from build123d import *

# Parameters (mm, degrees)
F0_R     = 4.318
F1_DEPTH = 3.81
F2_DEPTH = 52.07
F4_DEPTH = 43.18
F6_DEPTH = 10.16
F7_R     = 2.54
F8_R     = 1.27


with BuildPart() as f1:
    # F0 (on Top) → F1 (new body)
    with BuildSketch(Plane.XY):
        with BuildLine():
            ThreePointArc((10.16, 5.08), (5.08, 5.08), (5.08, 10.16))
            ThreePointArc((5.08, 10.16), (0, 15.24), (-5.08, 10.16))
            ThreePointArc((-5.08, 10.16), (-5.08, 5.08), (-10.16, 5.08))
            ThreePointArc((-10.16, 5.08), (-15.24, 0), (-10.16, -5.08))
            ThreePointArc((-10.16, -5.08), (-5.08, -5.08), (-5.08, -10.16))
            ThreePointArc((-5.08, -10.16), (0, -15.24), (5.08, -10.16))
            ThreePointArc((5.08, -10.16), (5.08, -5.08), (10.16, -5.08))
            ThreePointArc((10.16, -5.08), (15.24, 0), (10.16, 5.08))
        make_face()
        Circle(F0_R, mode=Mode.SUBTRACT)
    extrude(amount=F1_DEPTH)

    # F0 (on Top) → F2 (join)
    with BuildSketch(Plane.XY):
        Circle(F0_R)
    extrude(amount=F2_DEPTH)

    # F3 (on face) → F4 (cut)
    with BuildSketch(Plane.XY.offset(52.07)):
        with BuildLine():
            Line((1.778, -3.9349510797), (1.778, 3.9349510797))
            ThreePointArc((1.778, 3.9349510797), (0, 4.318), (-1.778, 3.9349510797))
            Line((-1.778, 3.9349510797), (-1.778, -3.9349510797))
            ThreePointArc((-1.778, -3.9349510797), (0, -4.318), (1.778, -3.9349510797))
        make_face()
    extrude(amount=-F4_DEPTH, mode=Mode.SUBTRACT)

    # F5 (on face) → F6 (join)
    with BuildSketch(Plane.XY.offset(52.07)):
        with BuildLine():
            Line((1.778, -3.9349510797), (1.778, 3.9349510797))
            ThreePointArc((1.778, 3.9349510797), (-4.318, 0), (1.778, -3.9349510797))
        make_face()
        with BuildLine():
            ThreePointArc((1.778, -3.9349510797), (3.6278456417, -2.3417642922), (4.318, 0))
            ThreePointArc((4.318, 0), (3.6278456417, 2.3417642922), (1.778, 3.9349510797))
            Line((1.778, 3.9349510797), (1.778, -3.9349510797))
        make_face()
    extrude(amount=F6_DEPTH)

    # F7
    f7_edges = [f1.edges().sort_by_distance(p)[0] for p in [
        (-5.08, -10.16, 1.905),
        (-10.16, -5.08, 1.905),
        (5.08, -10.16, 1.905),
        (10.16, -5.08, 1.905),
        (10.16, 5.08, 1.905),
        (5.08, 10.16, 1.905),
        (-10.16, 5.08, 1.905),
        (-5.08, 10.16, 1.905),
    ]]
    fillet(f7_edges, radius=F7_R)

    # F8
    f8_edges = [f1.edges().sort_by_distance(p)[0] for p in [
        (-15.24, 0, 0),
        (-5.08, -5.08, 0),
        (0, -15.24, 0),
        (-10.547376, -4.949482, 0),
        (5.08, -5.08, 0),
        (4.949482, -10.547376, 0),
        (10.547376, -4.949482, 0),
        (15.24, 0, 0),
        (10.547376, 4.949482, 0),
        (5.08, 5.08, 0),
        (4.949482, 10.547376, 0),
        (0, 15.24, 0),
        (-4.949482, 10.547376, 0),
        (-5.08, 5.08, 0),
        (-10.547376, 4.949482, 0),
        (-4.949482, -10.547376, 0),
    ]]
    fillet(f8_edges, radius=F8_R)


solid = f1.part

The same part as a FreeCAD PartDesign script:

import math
import FreeCAD as App
import Part
import Sketcher

V = App.Vector
Q = App.Units.Quantity


def edges_at(feature, points):
    """Names of the edges that pass closest to the given points."""
    edges = feature.Shape.Edges
    near = lambda p: min(range(len(edges)), key=lambda i: edges[i].distToShape(Part.Vertex(*p))[0])
    return sorted({f"Edge{near(p) + 1}" for p in points})

doc = App.newDocument("Part")
body = doc.addObject("PartDesign::Body", "Body")

# Sketch on XY plane
sketch1 = body.newObject("Sketcher::SketchObject", "Sketch")
sketch1.AttachmentSupport = (doc.getObject("XY_Plane"), [""])
sketch1.MapMode = "FlatFace"
sketch1.addGeometry(Part.ArcOfCircle(Part.Circle(V(7.62, 7.62, 0), V(0, 0, 1), 3.592102), math.radians(135), math.radians(315)), False)
sketch1.addGeometry(Part.ArcOfCircle(Part.Circle(V(0, 10.16, 0), V(0, 0, 1), 5.08), math.radians(0), math.radians(180)), False)
sketch1.addGeometry(Part.ArcOfCircle(Part.Circle(V(-7.62, 7.62, 0), V(0, 0, 1), 3.592102), math.radians(-135), math.radians(45)), False)
sketch1.addGeometry(Part.ArcOfCircle(Part.Circle(V(-10.16, 0, 0), V(0, 0, 1), 5.08), math.radians(90), math.radians(270)), False)
sketch1.addGeometry(Part.ArcOfCircle(Part.Circle(V(-7.62, -7.62, 0), V(0, 0, 1), 3.592102), math.radians(-45), math.radians(135)), False)
sketch1.addGeometry(Part.ArcOfCircle(Part.Circle(V(0, -10.16, 0), V(0, 0, 1), 5.08), math.radians(180), math.radians(360)), False)
sketch1.addGeometry(Part.ArcOfCircle(Part.Circle(V(7.62, -7.62, 0), V(0, 0, 1), 3.592102), math.radians(45), math.radians(225)), False)
sketch1.addGeometry(Part.ArcOfCircle(Part.Circle(V(10.16, 0, 0), V(0, 0, 1), 5.08), math.radians(-90), math.radians(90)), False)
sketch1.addGeometry(Part.Circle(V(0, 0, 0), V(0, 0, 1), 4.318), False)
sketch1.addConstraint(Sketcher.Constraint("Coincident", 0, 1, 1, 1))
sketch1.addConstraint(Sketcher.Constraint("Coincident", 1, 2, 2, 2))
sketch1.addConstraint(Sketcher.Constraint("Coincident", 2, 1, 3, 1))
sketch1.addConstraint(Sketcher.Constraint("Coincident", 3, 2, 4, 2))
sketch1.addConstraint(Sketcher.Constraint("Coincident", 4, 1, 5, 1))
sketch1.addConstraint(Sketcher.Constraint("Coincident", 5, 2, 6, 2))
sketch1.addConstraint(Sketcher.Constraint("Coincident", 6, 1, 7, 1))
sketch1.addConstraint(Sketcher.Constraint("Coincident", 7, 2, 0, 2))
sketch1.addConstraint(Sketcher.Constraint("Coincident", 8, 3, -1, 1))
sketch1.addConstraint(Sketcher.Constraint("Equal", 0, 2))
sketch1.addConstraint(Sketcher.Constraint("Equal", 1, 3))
sketch1.addConstraint(Sketcher.Constraint("Equal", 2, 4))
sketch1.addConstraint(Sketcher.Constraint("Equal", 3, 5))
sketch1.addConstraint(Sketcher.Constraint("Equal", 4, 6))
sketch1.addConstraint(Sketcher.Constraint("Equal", 5, 7))
sketch1.addConstraint(Sketcher.Constraint("Symmetric", 0, 3, 4, 3, -1, 1))
sketch1.addConstraint(Sketcher.Constraint("Symmetric", 1, 3, 5, 3, -1, 1))
sketch1.addConstraint(Sketcher.Constraint("Symmetric", 2, 3, 6, 3, -1, 1))
sketch1.addConstraint(Sketcher.Constraint("Symmetric", 3, 3, 7, 3, -1, 1))
sketch1.addConstraint(Sketcher.Constraint("Symmetric", 0, 3, 2, 3, -2))
sketch1.addConstraint(Sketcher.Constraint("PointOnObject", 1, 3, -2))
sketch1.addConstraint(Sketcher.Constraint("PointOnObject", 3, 3, -1))
sketch1.addConstraint(Sketcher.Constraint("Horizontal", 1, 3, 0, 1))
sketch1.addConstraint(Sketcher.Constraint("Vertical", 3, 3, 2, 1))
sketch1.addConstraint(Sketcher.Constraint("Radius", 1, Q("0.2 in")))
sketch1.addConstraint(Sketcher.Constraint("Diameter", 8, Q("0.34 in")))
sketch1.addConstraint(Sketcher.Constraint("DistanceX", -1, 1, 0, 3, Q("0.3 in")))
sketch1.addConstraint(Sketcher.Constraint("DistanceY", -1, 1, 0, 3, Q("0.3 in")))
sketch1.addConstraint(Sketcher.Constraint("DistanceY", -1, 1, 1, 3, Q("0.4 in")))
pad1 = body.newObject("PartDesign::Pad", "Pad")
pad1.Profile = sketch1
pad1.Length = Q("0.15 in")

# Sketch on XY plane
sketch2 = body.newObject("Sketcher::SketchObject", "Sketch001")
sketch2.AttachmentSupport = (doc.getObject("XY_Plane"), [""])
sketch2.MapMode = "FlatFace"
sketch2.addGeometry(Part.Circle(V(0, 0, 0), V(0, 0, 1), 4.318), False)
sketch2.addConstraint(Sketcher.Constraint("Coincident", 0, 3, -1, 1))
sketch2.addConstraint(Sketcher.Constraint("Diameter", 0, Q("0.34 in")))
pad2 = body.newObject("PartDesign::Pad", "Pad001")
pad2.Profile = sketch2
pad2.Length = Q("2.05 in")

# Sketch on XY plane
sketch3 = body.newObject("Sketcher::SketchObject", "Sketch002")
sketch3.AttachmentSupport = (doc.getObject("XY_Plane"), [""])
sketch3.MapMode = "FlatFace"
sketch3.AttachmentOffset = App.Placement(V(0, 0, 2.05 * 25.4), App.Rotation())
sketch3.addGeometry(Part.LineSegment(V(1.778, -3.934951, 0), V(1.778, 3.934951, 0)), False)
sketch3.addGeometry(Part.ArcOfCircle(Part.Circle(V(0, 0, 0), V(0, 0, 1), 4.318), math.radians(65.684261), math.radians(114.315739)), False)
sketch3.addGeometry(Part.LineSegment(V(-1.778, 3.934951, 0), V(-1.778, -3.934951, 0)), False)
sketch3.addGeometry(Part.ArcOfCircle(Part.Circle(V(0, 0, 0), V(0, 0, 1), 4.318), math.radians(-114.315739), math.radians(-65.684261)), False)
sketch3.addConstraint(Sketcher.Constraint("Coincident", 0, 2, 1, 1))
sketch3.addConstraint(Sketcher.Constraint("Coincident", 1, 2, 2, 1))
sketch3.addConstraint(Sketcher.Constraint("Coincident", 2, 2, 3, 1))
sketch3.addConstraint(Sketcher.Constraint("Coincident", 3, 2, 0, 1))
sketch3.addConstraint(Sketcher.Constraint("Vertical", 0))
sketch3.addConstraint(Sketcher.Constraint("Vertical", 2))
sketch3.addConstraint(Sketcher.Constraint("Coincident", 1, 3, -1, 1))
sketch3.addConstraint(Sketcher.Constraint("Coincident", 3, 3, -1, 1))
sketch3.addConstraint(Sketcher.Constraint("Equal", 1, 3))
sketch3.addConstraint(Sketcher.Constraint("Horizontal", 0, 2, 1, 2))
sketch3.addConstraint(Sketcher.Constraint("Radius", 1, Q("0.17 in")))
sketch3.addConstraint(Sketcher.Constraint("DistanceX", -1, 1, 0, 2, Q("0.07 in")))
pocket1 = body.newObject("PartDesign::Pocket", "Pocket")
pocket1.Profile = sketch3
pocket1.Length = Q("1.7 in")

# Sketch on XY plane
sketch4 = body.newObject("Sketcher::SketchObject", "Sketch003")
sketch4.AttachmentSupport = (doc.getObject("XY_Plane"), [""])
sketch4.MapMode = "FlatFace"
sketch4.AttachmentOffset = App.Placement(V(0, 0, 2.05 * 25.4), App.Rotation())
sketch4.addGeometry(Part.ArcOfCircle(Part.Circle(V(0, 0, 0), V(0, 0, 1), 4.318), math.radians(65.684261), math.radians(294.315739)), False)
sketch4.addGeometry(Part.ArcOfCircle(Part.Circle(V(0, 0, 0), V(0, 0, 1), 4.318), math.radians(-65.684261), math.radians(0)), False)
sketch4.addGeometry(Part.ArcOfCircle(Part.Circle(V(0, 0, 0), V(0, 0, 1), 4.318), math.radians(0), math.radians(65.684261)), False)
sketch4.addConstraint(Sketcher.Constraint("Tangent", 0, 2, 1, 1))
sketch4.addConstraint(Sketcher.Constraint("Tangent", 1, 2, 2, 1))
sketch4.addConstraint(Sketcher.Constraint("Tangent", 2, 2, 0, 1))
sketch4.addConstraint(Sketcher.Constraint("Coincident", 0, 3, -1, 1))
sketch4.addConstraint(Sketcher.Constraint("PointOnObject", 1, 2, -1))
sketch4.addConstraint(Sketcher.Constraint("Vertical", 0, 2, 2, 2))
sketch4.addConstraint(Sketcher.Constraint("Radius", 0, Q("0.17 in")))
sketch4.addConstraint(Sketcher.Constraint("DistanceX", 0, 2, 1, 2, Q("0.1 in")))
pad3 = body.newObject("PartDesign::Pad", "Pad002")
pad3.Profile = sketch4
pad3.Length = Q("0.4 in")
doc.recompute()

fillet = body.newObject("PartDesign::Fillet", "Fillet")
fillet.Base = (pad3, edges_at(pad3, [
    (-5.08, -10.16, 1.905),
    (-10.16, -5.08, 1.905),
    (5.08, -10.16, 1.905),
    (10.16, -5.08, 1.905),
    (10.16, 5.08, 1.905),
    (5.08, 10.16, 1.905),
    (-10.16, 5.08, 1.905),
    (-5.08, 10.16, 1.905),
]))
fillet.Radius = Q("0.1 in")
doc.recompute()

fillet2 = body.newObject("PartDesign::Fillet", "Fillet001")
fillet2.Base = (fillet, edges_at(fillet, [
    (-15.24, 0, 0),
    (-5.08, -5.08, 0),
    (0, -15.24, 0),
    (-10.547, -4.949, 0),
    (5.08, -5.08, 0),
    (4.949, -10.547, 0),
    (10.547, -4.949, 0),
    (15.24, 0, 0),
    (10.547, 4.949, 0),
    (5.08, 5.08, 0),
    (4.949, 10.547, 0),
    (0, 15.24, 0),
    (-4.949, 10.547, 0),
    (-5.08, 5.08, 0),
    (-10.547, 4.949, 0),
    (-4.949, -10.547, 0),
]))
fillet2.Radius = Q("0.05 in")

doc.recompute()
